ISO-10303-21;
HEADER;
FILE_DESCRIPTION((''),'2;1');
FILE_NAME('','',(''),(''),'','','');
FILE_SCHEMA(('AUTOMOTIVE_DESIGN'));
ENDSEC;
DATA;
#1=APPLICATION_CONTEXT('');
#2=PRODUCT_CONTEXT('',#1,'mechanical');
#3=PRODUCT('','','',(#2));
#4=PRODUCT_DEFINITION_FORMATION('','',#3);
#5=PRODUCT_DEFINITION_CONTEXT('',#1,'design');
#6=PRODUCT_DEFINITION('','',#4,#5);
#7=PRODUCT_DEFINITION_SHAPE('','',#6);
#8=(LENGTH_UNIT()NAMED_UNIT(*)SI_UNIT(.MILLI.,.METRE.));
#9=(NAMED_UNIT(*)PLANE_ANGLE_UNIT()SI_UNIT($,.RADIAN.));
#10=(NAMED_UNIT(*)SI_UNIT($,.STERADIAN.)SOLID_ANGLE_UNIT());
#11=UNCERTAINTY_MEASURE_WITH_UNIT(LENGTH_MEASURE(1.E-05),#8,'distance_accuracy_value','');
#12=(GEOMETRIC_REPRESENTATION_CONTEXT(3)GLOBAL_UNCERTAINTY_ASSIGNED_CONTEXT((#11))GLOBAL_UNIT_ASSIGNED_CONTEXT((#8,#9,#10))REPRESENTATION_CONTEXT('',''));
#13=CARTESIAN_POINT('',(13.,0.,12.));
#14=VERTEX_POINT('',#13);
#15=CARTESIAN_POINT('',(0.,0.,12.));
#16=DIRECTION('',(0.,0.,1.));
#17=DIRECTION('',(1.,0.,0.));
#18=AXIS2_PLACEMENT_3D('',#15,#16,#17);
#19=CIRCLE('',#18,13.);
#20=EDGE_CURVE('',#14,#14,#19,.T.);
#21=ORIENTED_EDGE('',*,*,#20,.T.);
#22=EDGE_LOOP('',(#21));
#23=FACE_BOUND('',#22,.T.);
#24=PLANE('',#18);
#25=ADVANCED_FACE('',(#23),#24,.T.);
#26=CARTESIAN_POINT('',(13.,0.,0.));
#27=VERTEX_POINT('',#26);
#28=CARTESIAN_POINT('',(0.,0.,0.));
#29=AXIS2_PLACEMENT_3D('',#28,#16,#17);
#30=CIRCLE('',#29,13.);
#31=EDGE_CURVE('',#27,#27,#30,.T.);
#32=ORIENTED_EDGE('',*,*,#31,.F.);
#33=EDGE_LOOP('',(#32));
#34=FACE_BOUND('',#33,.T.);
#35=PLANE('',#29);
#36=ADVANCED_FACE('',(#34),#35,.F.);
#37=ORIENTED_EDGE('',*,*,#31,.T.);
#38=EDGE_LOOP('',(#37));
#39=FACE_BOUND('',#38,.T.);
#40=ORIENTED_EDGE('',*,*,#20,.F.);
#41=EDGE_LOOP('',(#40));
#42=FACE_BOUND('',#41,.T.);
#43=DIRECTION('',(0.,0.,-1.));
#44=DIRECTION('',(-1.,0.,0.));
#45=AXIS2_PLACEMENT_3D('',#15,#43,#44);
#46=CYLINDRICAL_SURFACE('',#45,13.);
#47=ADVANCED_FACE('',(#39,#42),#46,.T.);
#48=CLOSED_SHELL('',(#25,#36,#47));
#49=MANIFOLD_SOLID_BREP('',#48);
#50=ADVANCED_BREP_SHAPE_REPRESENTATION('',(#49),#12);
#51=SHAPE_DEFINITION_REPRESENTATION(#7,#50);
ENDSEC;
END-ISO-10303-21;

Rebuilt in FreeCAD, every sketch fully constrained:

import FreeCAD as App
import Part
import Sketcher
Q = App.Units.Quantity

doc = App.newDocument("Part")
body = doc.addObject("PartDesign::Body", "Body")

# Sketch on XY plane
sketch1 = body.newObject("Sketcher::SketchObject", "Sketch")
sketch1.AttachmentSupport = (doc.getObject("XY_Plane"), [""])
sketch1.MapMode = "FlatFace"
sketch1.addGeometry(Part.Circle(App.Vector(0, 0, 0), App.Vector(0, 0, 1), 13), False)
sketch1.addConstraint([
    Sketcher.Constraint("Coincident", 0, 3, -1, 1),
    Sketcher.Constraint("Diameter", 0, Q("26 mm")),
])
pad1 = body.newObject("PartDesign::Pad", "Pad")
pad1.Profile = sketch1
pad1.Length = 12

doc.recompute()
